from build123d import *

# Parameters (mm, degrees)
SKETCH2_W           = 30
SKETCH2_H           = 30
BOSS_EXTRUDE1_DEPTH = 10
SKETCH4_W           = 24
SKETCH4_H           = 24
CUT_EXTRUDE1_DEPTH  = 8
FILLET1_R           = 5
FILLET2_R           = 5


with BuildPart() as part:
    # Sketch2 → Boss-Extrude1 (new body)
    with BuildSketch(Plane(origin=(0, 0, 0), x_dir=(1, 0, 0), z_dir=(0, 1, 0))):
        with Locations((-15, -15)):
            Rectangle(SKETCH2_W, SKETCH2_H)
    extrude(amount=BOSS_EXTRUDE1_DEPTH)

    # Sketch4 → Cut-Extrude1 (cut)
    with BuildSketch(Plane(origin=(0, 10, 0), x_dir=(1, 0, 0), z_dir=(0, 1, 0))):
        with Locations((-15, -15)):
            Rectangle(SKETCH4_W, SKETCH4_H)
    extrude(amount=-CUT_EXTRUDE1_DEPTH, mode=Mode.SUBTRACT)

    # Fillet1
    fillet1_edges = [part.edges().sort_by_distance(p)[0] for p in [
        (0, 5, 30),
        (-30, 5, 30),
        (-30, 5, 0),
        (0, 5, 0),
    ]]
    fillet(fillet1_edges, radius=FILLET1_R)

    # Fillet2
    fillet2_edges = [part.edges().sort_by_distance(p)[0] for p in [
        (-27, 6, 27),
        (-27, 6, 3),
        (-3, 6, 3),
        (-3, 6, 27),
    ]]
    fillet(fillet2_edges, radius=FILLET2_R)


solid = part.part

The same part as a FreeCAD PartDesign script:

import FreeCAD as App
import Part
import Sketcher

V = App.Vector
Q = App.Units.Quantity


def edges_at(feature, points):
    """Names of the edges that pass closest to the given points."""
    edges = feature.Shape.Edges
    near = lambda p: min(range(len(edges)), key=lambda i: edges[i].distToShape(Part.Vertex(*p))[0])
    return sorted({f"Edge{near(p) + 1}" for p in points})

doc = App.newDocument("Part")
body = doc.addObject("PartDesign::Body", "Body")

# Sketch on XZ plane
sketch1 = doc.addObject("Sketcher::SketchObject", "Sketch")
body.addObject(sketch1)
sketch1.AttachmentSupport = (doc.XZ_Plane, [""])
sketch1.MapMode = "FlatFace"
sketch1.addGeometry(Part.LineSegment(V(-30, 0, 0), V(-30, 30, 0)), False)
sketch1.addGeometry(Part.LineSegment(V(-30, 30, 0), V(0, 30, 0)), False)
sketch1.addGeometry(Part.LineSegment(V(0, 30, 0), V(0, 0, 0)), False)
sketch1.addGeometry(Part.LineSegment(V(0, 0, 0), V(-30, 0, 0)), False)
sketch1.addConstraint(Sketcher.Constraint("Coincident", 0, 2, 1, 1))
sketch1.addConstraint(Sketcher.Constraint("Coincident", 1, 2, 2, 1))
sketch1.addConstraint(Sketcher.Constraint("Coincident", 2, 2, 3, 1))
sketch1.addConstraint(Sketcher.Constraint("Coincident", 3, 2, 0, 1))
sketch1.addConstraint(Sketcher.Constraint("Vertical", 0))
sketch1.addConstraint(Sketcher.Constraint("Horizontal", 1))
sketch1.addConstraint(Sketcher.Constraint("Vertical", 2))
sketch1.addConstraint(Sketcher.Constraint("Horizontal", 3))
sketch1.addConstraint(Sketcher.Constraint("Coincident", 2, 2, -1, 1))
sketch1.addConstraint(Sketcher.Constraint("Equal", 3, 0))
sketch1.addConstraint(Sketcher.Constraint("DistanceX", 1, 1, 1, 2, Q("30 mm")))
pad1 = doc.addObject("PartDesign::Pad", "Pad")
body.addObject(pad1)
pad1.Profile = sketch1
pad1.Length = 10
pad1.Reversed = True

# Sketch on XZ plane
sketch2 = doc.addObject("Sketcher::SketchObject", "Sketch001")
body.addObject(sketch2)
sketch2.AttachmentSupport = (doc.XZ_Plane, [""])
sketch2.MapMode = "FlatFace"
sketch2.AttachmentOffset = App.Placement(V(0, 0, -10), App.Rotation())
sketch2.addGeometry(Part.LineSegment(V(-27, 3, 0), V(-27, 27, 0)), False)
sketch2.addGeometry(Part.LineSegment(V(-27, 27, 0), V(-3, 27, 0)), False)
sketch2.addGeometry(Part.LineSegment(V(-3, 27, 0), V(-3, 3, 0)), False)
sketch2.addGeometry(Part.LineSegment(V(-3, 3, 0), V(-27, 3, 0)), False)
sketch2.addConstraint(Sketcher.Constraint("Coincident", 0, 2, 1, 1))
sketch2.addConstraint(Sketcher.Constraint("Coincident", 1, 2, 2, 1))
sketch2.addConstraint(Sketcher.Constraint("Coincident", 2, 2, 3, 1))
sketch2.addConstraint(Sketcher.Constraint("Coincident", 3, 2, 0, 1))
sketch2.addConstraint(Sketcher.Constraint("Vertical", 0))
sketch2.addConstraint(Sketcher.Constraint("Horizontal", 1))
sketch2.addConstraint(Sketcher.Constraint("Vertical", 2))
sketch2.addConstraint(Sketcher.Constraint("Horizontal", 3))
sketch2.addConstraint(Sketcher.Constraint("Equal", 3, 0))
sketch2.addConstraint(Sketcher.Constraint("DistanceX", 1, 1, 1, 2, Q("24 mm")))
sketch2.addConstraint(Sketcher.Constraint("DistanceX", 0, 2, -1, 1, Q("27 mm")))
sketch2.addConstraint(Sketcher.Constraint("DistanceY", -1, 1, 0, 2, Q("27 mm")))
pocket1 = doc.addObject("PartDesign::Pocket", "Pocket")
body.addObject(pocket1)
pocket1.Profile = sketch2
pocket1.Length = 8
pocket1.Reversed = True
doc.recompute()

fillet = doc.addObject("PartDesign::Fillet", "Fillet")
body.addObject(fillet)
fillet.Base = (pocket1, edges_at(pocket1, [
    (0, 5, 30),
    (-30, 5, 30),
    (-30, 5, 0),
    (0, 5, 0),
]))
fillet.Radius = 5
doc.recompute()

fillet2 = doc.addObject("PartDesign::Fillet", "Fillet001")
body.addObject(fillet2)
fillet2.Base = (fillet, edges_at(fillet, [
    (-27, 6, 27),
    (-27, 6, 3),
    (-3, 6, 3),
    (-3, 6, 27),
]))
fillet2.Radius = 5

doc.recompute()
